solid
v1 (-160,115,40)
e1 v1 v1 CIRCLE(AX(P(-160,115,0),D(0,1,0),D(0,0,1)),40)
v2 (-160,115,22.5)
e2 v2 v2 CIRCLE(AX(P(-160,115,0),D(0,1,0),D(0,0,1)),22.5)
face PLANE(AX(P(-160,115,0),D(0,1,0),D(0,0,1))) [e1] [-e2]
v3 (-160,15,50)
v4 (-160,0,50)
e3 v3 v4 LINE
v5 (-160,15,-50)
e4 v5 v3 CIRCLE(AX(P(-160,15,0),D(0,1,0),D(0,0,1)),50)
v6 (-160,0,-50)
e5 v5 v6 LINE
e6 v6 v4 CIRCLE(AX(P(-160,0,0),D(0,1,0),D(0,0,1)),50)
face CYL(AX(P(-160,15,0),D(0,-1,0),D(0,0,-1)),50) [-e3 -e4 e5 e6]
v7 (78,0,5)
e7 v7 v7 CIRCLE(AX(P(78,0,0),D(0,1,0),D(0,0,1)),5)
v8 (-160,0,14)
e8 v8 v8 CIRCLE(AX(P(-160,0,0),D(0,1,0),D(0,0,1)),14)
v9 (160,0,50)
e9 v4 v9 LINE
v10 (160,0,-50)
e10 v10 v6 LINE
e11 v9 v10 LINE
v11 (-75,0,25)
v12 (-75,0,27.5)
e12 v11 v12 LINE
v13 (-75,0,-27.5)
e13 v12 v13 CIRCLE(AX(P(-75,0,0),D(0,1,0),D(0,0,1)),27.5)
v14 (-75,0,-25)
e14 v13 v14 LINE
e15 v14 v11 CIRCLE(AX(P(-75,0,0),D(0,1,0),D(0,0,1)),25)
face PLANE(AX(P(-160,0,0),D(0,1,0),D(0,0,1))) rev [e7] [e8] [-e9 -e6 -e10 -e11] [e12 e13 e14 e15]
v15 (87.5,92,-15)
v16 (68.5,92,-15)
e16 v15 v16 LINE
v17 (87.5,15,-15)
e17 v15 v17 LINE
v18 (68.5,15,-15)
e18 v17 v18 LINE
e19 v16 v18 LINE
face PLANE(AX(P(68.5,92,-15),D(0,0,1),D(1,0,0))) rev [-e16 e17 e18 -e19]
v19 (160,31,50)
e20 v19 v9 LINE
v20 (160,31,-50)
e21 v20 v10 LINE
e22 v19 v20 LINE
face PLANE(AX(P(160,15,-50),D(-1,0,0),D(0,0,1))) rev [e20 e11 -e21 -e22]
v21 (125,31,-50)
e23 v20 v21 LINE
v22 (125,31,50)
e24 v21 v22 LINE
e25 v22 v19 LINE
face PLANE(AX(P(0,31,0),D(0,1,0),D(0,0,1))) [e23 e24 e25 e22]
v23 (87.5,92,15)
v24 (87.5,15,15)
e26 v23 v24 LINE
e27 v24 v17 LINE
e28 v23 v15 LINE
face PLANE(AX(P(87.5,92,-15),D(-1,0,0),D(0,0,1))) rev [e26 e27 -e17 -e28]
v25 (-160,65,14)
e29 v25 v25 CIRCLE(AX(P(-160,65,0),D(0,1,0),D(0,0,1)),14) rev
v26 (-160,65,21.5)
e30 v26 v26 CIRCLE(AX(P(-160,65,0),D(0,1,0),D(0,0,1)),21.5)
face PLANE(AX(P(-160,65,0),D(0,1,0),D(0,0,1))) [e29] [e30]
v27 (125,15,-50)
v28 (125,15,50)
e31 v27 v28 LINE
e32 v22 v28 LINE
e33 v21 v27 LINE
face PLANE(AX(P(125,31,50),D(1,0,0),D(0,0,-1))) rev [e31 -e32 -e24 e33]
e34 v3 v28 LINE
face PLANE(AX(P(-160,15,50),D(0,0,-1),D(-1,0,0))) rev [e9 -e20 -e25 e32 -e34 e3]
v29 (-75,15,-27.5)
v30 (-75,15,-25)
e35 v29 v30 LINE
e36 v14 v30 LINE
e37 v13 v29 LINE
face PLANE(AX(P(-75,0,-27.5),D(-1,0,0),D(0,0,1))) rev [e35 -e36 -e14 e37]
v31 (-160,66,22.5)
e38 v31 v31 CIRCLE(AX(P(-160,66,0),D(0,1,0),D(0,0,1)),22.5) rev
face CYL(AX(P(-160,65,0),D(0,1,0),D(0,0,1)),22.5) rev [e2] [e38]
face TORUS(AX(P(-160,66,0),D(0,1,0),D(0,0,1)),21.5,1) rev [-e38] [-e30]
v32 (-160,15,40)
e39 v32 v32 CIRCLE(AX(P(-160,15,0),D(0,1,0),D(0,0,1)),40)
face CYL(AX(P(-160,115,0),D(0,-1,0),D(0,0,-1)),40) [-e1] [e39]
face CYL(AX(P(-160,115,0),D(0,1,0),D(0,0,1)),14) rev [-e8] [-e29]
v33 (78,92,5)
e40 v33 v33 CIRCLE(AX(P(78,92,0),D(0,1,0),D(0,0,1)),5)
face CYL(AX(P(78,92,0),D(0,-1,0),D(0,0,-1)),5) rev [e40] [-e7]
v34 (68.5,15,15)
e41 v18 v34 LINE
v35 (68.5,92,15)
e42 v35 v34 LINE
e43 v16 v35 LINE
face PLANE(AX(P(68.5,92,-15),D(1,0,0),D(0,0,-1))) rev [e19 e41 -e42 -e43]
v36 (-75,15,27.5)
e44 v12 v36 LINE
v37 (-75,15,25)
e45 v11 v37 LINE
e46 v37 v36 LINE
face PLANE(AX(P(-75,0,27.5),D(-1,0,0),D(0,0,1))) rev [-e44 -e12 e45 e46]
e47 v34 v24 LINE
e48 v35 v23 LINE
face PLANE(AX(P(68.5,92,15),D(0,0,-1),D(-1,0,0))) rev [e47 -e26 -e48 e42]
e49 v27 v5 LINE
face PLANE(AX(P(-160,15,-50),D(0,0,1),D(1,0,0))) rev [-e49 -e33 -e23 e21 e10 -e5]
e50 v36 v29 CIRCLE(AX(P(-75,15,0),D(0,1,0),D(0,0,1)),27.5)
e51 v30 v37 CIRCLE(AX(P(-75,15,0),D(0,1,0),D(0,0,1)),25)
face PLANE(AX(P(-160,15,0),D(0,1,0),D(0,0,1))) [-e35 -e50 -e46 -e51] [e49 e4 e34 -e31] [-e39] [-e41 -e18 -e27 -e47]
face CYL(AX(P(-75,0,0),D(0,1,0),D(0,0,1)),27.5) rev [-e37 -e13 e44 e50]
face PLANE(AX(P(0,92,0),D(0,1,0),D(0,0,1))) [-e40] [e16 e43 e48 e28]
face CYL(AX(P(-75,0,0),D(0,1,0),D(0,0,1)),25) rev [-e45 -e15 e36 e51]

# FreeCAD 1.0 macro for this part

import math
import FreeCAD as App
import Part
import Sketcher
from FreeCAD import Vector


def edges_at(feature, points):
    """Names of the edges that pass closest to the given points."""
    edges = feature.Shape.Edges
    near = lambda p: min(range(len(edges)), key=lambda i: edges[i].distToShape(Part.Vertex(*p))[0])
    return sorted({f"Edge{near(p) + 1}" for p in points})


def add_polygon(sketch, points):
    """Adds a closed chain of lines whose ends are joined by coincident constraints."""
    first, n = sketch.GeometryCount, len(points)
    for a, b in zip(points, points[1:] + points[:1]):
        sketch.addGeometry(Part.LineSegment(App.Vector(*a, 0), App.Vector(*b, 0)), False)
    for i in range(n):
        sketch.addConstraint(Sketcher.Constraint("Coincident", first + i, 2, first + (i + 1) % n, 1))

doc = App.newDocument("Part")
body = doc.addObject("PartDesign::Body", "Body")

sketch1 = body.newObject("Sketcher::SketchObject", "Sketch")
sketch1.AttachmentSupport = (doc.getObject("XZ_Plane"), [""])
sketch1.MapMode = "FlatFace"
sketch1.addGeometry([
    Part.LineSegment(Vector(160, -50, 0), Vector(-160, -50, 0)),
    Part.ArcOfCircle(Part.Circle(Vector(-160, 0, 0), Vector(0, 0, 1), 50), math.radians(90), math.radians(270)),
    Part.LineSegment(Vector(-160, 50, 0), Vector(160, 50, 0)),
    Part.LineSegment(Vector(160, 50, 0), Vector(160, -50, 0)),
], False)
sketch1.addConstraint([
    Sketcher.Constraint("Tangent", 0, 2, 1, 2),
    Sketcher.Constraint("Tangent", 1, 1, 2, 1),
    Sketcher.Constraint("Coincident", 2, 2, 3, 1),
    Sketcher.Constraint("Coincident", 3, 2, 0, 1),
    Sketcher.Constraint("Horizontal", 0),
    Sketcher.Constraint("Horizontal", 2),
    Sketcher.Constraint("Vertical", 3),
    Sketcher.Constraint("Symmetric", 0, 2, 2, 2, -1, 1),
    Sketcher.Constraint("Radius", 1, 50.0),
    Sketcher.Constraint("DistanceX", 0, 2, 0, 1, 320.0),
])
pad1 = body.newObject("PartDesign::Pad", "Pad")
pad1.Profile = sketch1
pad1.Length = 15
pad1.Reversed = True

sketch2 = body.newObject("Sketcher::SketchObject", "Sketch001")
sketch2.AttachmentSupport = (doc.getObject("XZ_Plane"), [""])
sketch2.MapMode = "FlatFace"
sketch2.AttachmentOffset = App.Placement(Vector(0, 0, -15), App.Rotation())
sketch2.addGeometry(Part.Circle(Vector(-160, 0, 0), Vector(0, 0, 1), 40), False)
sketch2.addConstraint([
    Sketcher.Constraint("PointOnObject", 0, 3, -1),
    Sketcher.Constraint("Diameter", 0, 80.0),
    Sketcher.Constraint("DistanceX", 0, 3, -1, 1, 160.0),
])
pad2 = body.newObject("PartDesign::Pad", "Pad001")
pad2.Profile = sketch2
pad2.Length = 100
pad2.Reversed = True

sketch3 = body.newObject("Sketcher::SketchObject", "Sketch002")
sketch3.AttachmentSupport = (doc.getObject("XZ_Plane"), [""])
sketch3.MapMode = "FlatFace"
sketch3.AttachmentOffset = App.Placement(Vector(0, 0, -115), App.Rotation())
sketch3.addGeometry(Part.Circle(Vector(-160, 0, 0), Vector(0, 0, 1), 14), False)
sketch3.addConstraint([
    Sketcher.Constraint("PointOnObject", 0, 3, -1),
    Sketcher.Constraint("Diameter", 0, 28.0),
    Sketcher.Constraint("DistanceX", 0, 3, -1, 1, 160.0),
])
doc.recompute()
hole = body.newObject("PartDesign::Hole", "Hole")
hole.Profile = sketch3
hole.ThreadType = "None"
hole.Diameter = 28
hole.DepthType = "ThroughAll"
hole.Reversed = True

sketch4 = body.newObject("Sketcher::SketchObject", "Sketch003")
sketch4.AttachmentSupport = (doc.getObject("XZ_Plane"), [""])
sketch4.MapMode = "FlatFace"
sketch4.AttachmentOffset = App.Placement(Vector(0, 0, -115), App.Rotation())
sketch4.addGeometry(Part.Circle(Vector(-160, 0, 0), Vector(0, 0, 1), 22.5), False)
sketch4.addConstraint([
    Sketcher.Constraint("PointOnObject", 0, 3, -1),
    Sketcher.Constraint("Diameter", 0, 45.0),
    Sketcher.Constraint("DistanceX", 0, 3, -1, 1, 160.0),
])
pocket1 = body.newObject("PartDesign::Pocket", "Pocket")
pocket1.Profile = sketch4
pocket1.Length = 50
pocket1.Reversed = True

sketch5 = body.newObject("Sketcher::SketchObject", "Sketch004")
sketch5.AttachmentSupport = (doc.getObject("XZ_Plane"), [""])
sketch5.MapMode = "FlatFace"
sketch5.AttachmentOffset = App.Placement(Vector(0, 0, -15), App.Rotation())
add_polygon(sketch5, [(125, -50), (125, 50), (160, 50), (160, -50)])
sketch5.addConstraint([
    Sketcher.Constraint("Vertical", 0),
    Sketcher.Constraint("Horizontal", 1),
    Sketcher.Constraint("Vertical", 2),
    Sketcher.Constraint("Horizontal", 3),
    Sketcher.Constraint("DistanceX", 1, 1, 1, 2, 35.0),
    Sketcher.Constraint("DistanceY", 0, 1, 0, 2, 100.0),
    Sketcher.Constraint("DistanceX", -1, 1, 0, 2, 125.0),
    Sketcher.Constraint("DistanceY", -1, 1, 0, 2, 50.0),
])
pad3 = body.newObject("PartDesign::Pad", "Pad002")
pad3.Profile = sketch5
pad3.Length = 16
pad3.Reversed = True

sketch6 = body.newObject("Sketcher::SketchObject", "Sketch005")
sketch6.AttachmentSupport = (doc.getObject("XZ_Plane"), [""])
sketch6.MapMode = "FlatFace"
sketch6.AttachmentOffset = App.Placement(Vector(0, 0, -15), App.Rotation())
sketch6.addGeometry(Part.Circle(Vector(-75, 0, 0), Vector(0, 0, 1), 15), False)
sketch6.addConstraint([
    Sketcher.Constraint("PointOnObject", 0, 3, -1),
    Sketcher.Constraint("Diameter", 0, 30.0),
    Sketcher.Constraint("DistanceX", 0, 3, -1, 1, 75.0),
])
pocket2 = body.newObject("PartDesign::Pocket", "Pocket001")
pocket2.Profile = sketch6
pocket2.Type = "ThroughAll"
pocket2.Reversed = True

sketch7 = body.newObject("Sketcher::SketchObject", "Sketch006")
sketch7.AttachmentSupport = (doc.getObject("XZ_Plane"), [""])
sketch7.MapMode = "FlatFace"
sketch7.AttachmentOffset = App.Placement(Vector(0, 0, -15), App.Rotation())
add_polygon(sketch7, [(68.5, -15), (68.5, 15), (87.5, 15), (87.5, -15)])
sketch7.addGeometry(Part.Circle(Vector(78, 0, 0), Vector(0, 0, 1), 5), False)
sketch7.addConstraint([
    Sketcher.Constraint("Vertical", 0),
    Sketcher.Constraint("Horizontal", 1),
    Sketcher.Constraint("Vertical", 2),
    Sketcher.Constraint("Horizontal", 3),
    Sketcher.Constraint("PointOnObject", 4, 3, -1),
    Sketcher.Constraint("Diameter", 4, 10.0),
    Sketcher.Constraint("DistanceX", 1, 1, 1, 2, 19.0),
    Sketcher.Constraint("DistanceY", 0, 1, 0, 2, 30.0),
    Sketcher.Constraint("DistanceX", -1, 1, 4, 3, 78.0),
    Sketcher.Constraint("DistanceY", -1, 1, 0, 2, 15.0),
    Sketcher.Constraint("DistanceX", -1, 1, 0, 2, 68.5),
])
pad4 = body.newObject("PartDesign::Pad", "Pad003")
pad4.Profile = sketch7
pad4.Length = 77
pad4.Reversed = True

sketch8 = body.newObject("Sketcher::SketchObject", "Sketch007")
sketch8.AttachmentSupport = (doc.getObject("XZ_Plane"), [""])
sketch8.MapMode = "FlatFace"
sketch8.AttachmentOffset = App.Placement(Vector(0, 0, -15), App.Rotation())
sketch8.addGeometry([
    Part.LineSegment(Vector(-75, 25, 0), Vector(-75, 27.5, 0)),
    Part.ArcOfCircle(Part.Circle(Vector(-75, 0, 0), Vector(0, 0, 1), 27.5), math.radians(-90), math.radians(90)),
    Part.LineSegment(Vector(-75, -27.5, 0), Vector(-75, -25, 0)),
    Part.ArcOfCircle(Part.Circle(Vector(-75, 0, 0), Vector(0, 0, 1), 25), math.radians(90), math.radians(270)),
], False)
sketch8.addConstraint([
    Sketcher.Constraint("Coincident", 0, 2, 1, 2),
    Sketcher.Constraint("Coincident", 1, 1, 2, 1),
    Sketcher.Constraint("Coincident", 2, 2, 3, 2),
    Sketcher.Constraint("Coincident", 3, 1, 0, 1),
    Sketcher.Constraint("Vertical", 0),
    Sketcher.Constraint("Vertical", 2),
    Sketcher.Constraint("Coincident", 3, 3, 1, 3),
    Sketcher.Constraint("Symmetric", 0, 2, 1, 1, -1),
    Sketcher.Constraint("Vertical", 3, 3, 0, 2),
    Sketcher.Constraint("Radius", 3, 25.0),
    Sketcher.Constraint("Radius", 1, 27.5),
    Sketcher.Constraint("DistanceX", 1, 3, -1, 1, 75.0),
])
pocket3 = body.newObject("PartDesign::Pocket", "Pocket002")
pocket3.Profile = sketch8
pocket3.Type = "ThroughAll"
pocket3.Reversed = True

sketch9 = body.newObject("Sketcher::SketchObject", "Sketch008")
sketch9.AttachmentSupport = (doc.getObject("XZ_Plane"), [""])
sketch9.MapMode = "FlatFace"
sketch9.AttachmentOffset = App.Placement(Vector(0, 0, -15), App.Rotation())
sketch9.addGeometry(Part.Circle(Vector(78, 0, 0), Vector(0, 0, 1), 5), False)
sketch9.addConstraint([
    Sketcher.Constraint("PointOnObject", 0, 3, -1),
    Sketcher.Constraint("Diameter", 0, 10.0),
    Sketcher.Constraint("DistanceX", -1, 1, 0, 3, 78.0),
])
pocket4 = body.newObject("PartDesign::Pocket", "Pocket003")
pocket4.Profile = sketch9
pocket4.Type = "ThroughAll"
pocket4.Reversed = True
doc.recompute()

fillet = body.newObject("PartDesign::Fillet", "Fillet")
fillet.Base = (pocket4, edges_at(pocket4, [(-160, 65, -22.5)]))
fillet.Radius = 1

doc.recompute()
